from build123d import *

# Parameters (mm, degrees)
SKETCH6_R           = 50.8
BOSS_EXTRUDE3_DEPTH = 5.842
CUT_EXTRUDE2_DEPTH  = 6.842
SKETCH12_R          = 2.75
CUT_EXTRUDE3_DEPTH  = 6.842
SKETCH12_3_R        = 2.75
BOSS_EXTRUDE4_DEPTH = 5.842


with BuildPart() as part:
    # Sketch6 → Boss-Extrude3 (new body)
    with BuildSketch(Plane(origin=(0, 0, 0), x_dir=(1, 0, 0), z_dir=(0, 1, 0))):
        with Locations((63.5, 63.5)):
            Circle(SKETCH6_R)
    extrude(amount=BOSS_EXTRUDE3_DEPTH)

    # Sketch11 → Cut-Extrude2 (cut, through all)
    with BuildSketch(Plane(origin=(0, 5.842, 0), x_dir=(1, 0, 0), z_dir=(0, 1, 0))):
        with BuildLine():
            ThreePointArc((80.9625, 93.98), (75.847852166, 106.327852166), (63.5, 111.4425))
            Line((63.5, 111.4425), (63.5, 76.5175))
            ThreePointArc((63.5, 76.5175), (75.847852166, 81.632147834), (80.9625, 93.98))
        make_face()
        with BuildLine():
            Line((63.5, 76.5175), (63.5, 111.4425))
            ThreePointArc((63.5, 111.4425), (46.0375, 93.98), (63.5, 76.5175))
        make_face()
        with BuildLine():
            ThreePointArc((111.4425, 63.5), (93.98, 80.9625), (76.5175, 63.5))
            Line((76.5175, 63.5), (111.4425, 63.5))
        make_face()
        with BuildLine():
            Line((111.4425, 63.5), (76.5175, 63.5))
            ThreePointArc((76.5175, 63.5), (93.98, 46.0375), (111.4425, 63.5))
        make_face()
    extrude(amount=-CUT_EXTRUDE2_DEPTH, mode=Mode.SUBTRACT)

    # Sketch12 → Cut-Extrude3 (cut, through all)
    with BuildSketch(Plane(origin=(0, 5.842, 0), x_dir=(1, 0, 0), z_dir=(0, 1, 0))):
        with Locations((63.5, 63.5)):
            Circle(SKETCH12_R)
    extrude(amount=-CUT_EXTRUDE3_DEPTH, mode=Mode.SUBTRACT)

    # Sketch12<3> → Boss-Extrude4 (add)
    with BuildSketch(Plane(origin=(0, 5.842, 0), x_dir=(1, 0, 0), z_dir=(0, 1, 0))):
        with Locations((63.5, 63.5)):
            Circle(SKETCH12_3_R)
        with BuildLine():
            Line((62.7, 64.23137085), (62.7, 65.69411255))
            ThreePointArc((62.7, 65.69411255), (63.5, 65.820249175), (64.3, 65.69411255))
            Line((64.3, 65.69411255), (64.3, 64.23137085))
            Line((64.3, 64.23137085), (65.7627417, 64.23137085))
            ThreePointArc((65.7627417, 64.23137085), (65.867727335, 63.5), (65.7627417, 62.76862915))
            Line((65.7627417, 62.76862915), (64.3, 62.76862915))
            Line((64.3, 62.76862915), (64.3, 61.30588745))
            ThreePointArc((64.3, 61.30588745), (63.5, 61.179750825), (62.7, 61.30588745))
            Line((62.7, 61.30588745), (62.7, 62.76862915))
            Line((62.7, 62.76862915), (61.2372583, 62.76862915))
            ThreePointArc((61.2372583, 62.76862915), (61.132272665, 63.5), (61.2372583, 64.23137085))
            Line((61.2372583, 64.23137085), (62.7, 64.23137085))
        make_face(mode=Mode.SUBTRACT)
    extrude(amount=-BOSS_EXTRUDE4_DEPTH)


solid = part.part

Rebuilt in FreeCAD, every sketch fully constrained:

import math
import FreeCAD as App
import Part
import Sketcher

V = App.Vector
Q = App.Units.Quantity

doc = App.newDocument("Part")
body = doc.addObject("PartDesign::Body", "Body")

sketch1 = doc.addObject("Sketcher::SketchObject", "Sketch")
body.addObject(sketch1)
sketch1.AttachmentSupport = (doc.XZ_Plane, [""])
sketch1.MapMode = "FlatFace"
sketch1.addGeometry(Part.Circle(V(64, -64, 0), V(0, 0, 1), 51), False)
sketch1.addConstraint([
    Sketcher.Constraint("Diameter", 0, Q("4 in")),
    Sketcher.Constraint("DistanceX", -1, 1, 0, 3, Q("2.5 in")),
    Sketcher.Constraint("DistanceY", 0, 3, -1, 1, Q("2.5 in")),
])
pad1 = doc.addObject("PartDesign::Pad", "Pad")
body.addObject(pad1)
pad1.Profile = sketch1
pad1.Length = Q("0.23 in")
pad1.Reversed = True

sketch2 = doc.addObject("Sketcher::SketchObject", "Sketch001")
body.addObject(sketch2)
sketch2.AttachmentSupport = (doc.XZ_Plane, [""])
sketch2.MapMode = "FlatFace"
sketch2.AttachmentOffset = App.Placement(V(0, 0, -0.23 * 25.4), App.Rotation())
sketch2.addGeometry([
    Part.ArcOfCircle(Part.Circle(V(63, -94, 0), V(0, 0, 1), 17), math.radians(-90), math.radians(0)),
    Part.ArcOfCircle(Part.Circle(V(64, -94, 0), V(0, 0, 1), 17), math.radians(90), math.radians(270)),
    Part.ArcOfCircle(Part.Circle(V(63, -94, 0), V(0, 0, 1), 17), math.radians(0), math.radians(90)),
    Part.Circle(V(94, -64, 0), V(0, 0, 1), 17),
], False)
sketch2.addConstraint([
    Sketcher.Constraint("Tangent", 0, 1, 1, 2),
    Sketcher.Constraint("Tangent", 1, 1, 2, 2),
    Sketcher.Constraint("Tangent", 2, 1, 0, 2),
    Sketcher.Constraint("Equal", 2, 3),
    Sketcher.Constraint("Horizontal", 1, 3, 2, 1),
    Sketcher.Constraint("Vertical", 2, 3, 0, 1),
    Sketcher.Constraint("Vertical", 0, 1, 1, 1),
    Sketcher.Constraint("Diameter", 3, Q("1.375 in")),
    Sketcher.Constraint("DistanceX", -1, 1, 0, 3, Q("2.5 in")),
    Sketcher.Constraint("DistanceY", 0, 3, -1, 1, Q("3.7 in")),
    Sketcher.Constraint("DistanceX", -1, 1, 3, 3, Q("3.7 in")),
    Sketcher.Constraint("DistanceY", 3, 3, -1, 1, Q("2.5 in")),
])
pocket1 = doc.addObject("PartDesign::Pocket", "Pocket")
body.addObject(pocket1)
pocket1.Profile = sketch2
pocket1.Type = "ThroughAll"
pocket1.Reversed = True

sketch3 = doc.addObject("Sketcher::SketchObject", "Sketch002")
body.addObject(sketch3)
sketch3.AttachmentSupport = (doc.XZ_Plane, [""])
sketch3.MapMode = "FlatFace"
sketch3.AttachmentOffset = App.Placement(V(0, 0, -0.23 * 25.4), App.Rotation())
sketch3.addGeometry(Part.Circle(V(63.5, -63.5, 0), V(0, 0, 1), 2.8), False)
sketch3.addConstraint([
    Sketcher.Constraint("DistanceX", -1, 1, 0, 3, Q("2.5 in")),
    Sketcher.Constraint("DistanceY", 0, 3, -1, 1, Q("2.5 in")),
    Sketcher.Constraint("Diameter", 0, 5.5),
])
pocket2 = doc.addObject("PartDesign::Pocket", "Pocket001")
body.addObject(pocket2)
pocket2.Profile = sketch3
pocket2.Type = "ThroughAll"
pocket2.Reversed = True

sketch4 = doc.addObject("Sketcher::SketchObject", "Sketch003")
body.addObject(sketch4)
sketch4.AttachmentSupport = (doc.XZ_Plane, [""])
sketch4.MapMode = "FlatFace"
sketch4.AttachmentOffset = App.Placement(V(0, 0, -0.23 * 25.4), App.Rotation())
sketch4.addGeometry([
    Part.Circle(V(63.5, -63.5, 0), V(0, 0, 1), 2.8),
    Part.LineSegment(V(61.2, -64.2, 0), V(62.7, -64.2, 0)),
    Part.LineSegment(V(62.7, -64.2, 0), V(62.7, -65.7, 0)),
    Part.ArcOfCircle(Part.Circle(V(63.5, -63.2, 0), V(0, 0, 1), 2.6), math.radians(-108), math.radians(-72)),
    Part.LineSegment(V(64.3, -65.7, 0), V(64.3, -64.2, 0)),
    Part.LineSegment(V(64.3, -64.2, 0), V(65.8, -64.2, 0)),
    Part.ArcOfCircle(Part.Circle(V(63.3, -63.5, 0), V(0, 0, 1), 2.6), math.radians(-16), math.radians(16)),
    Part.LineSegment(V(65.8, -62.8, 0), V(64.3, -62.8, 0)),
    Part.LineSegment(V(64.3, -62.8, 0), V(64.3, -61.3, 0)),
    Part.ArcOfCircle(Part.Circle(V(63.5, -63.8, 0), V(0, 0, 1), 2.6), math.radians(72), math.radians(108)),
    Part.LineSegment(V(62.7, -61.3, 0), V(62.7, -62.8, 0)),
    Part.LineSegment(V(62.7, -62.8, 0), V(61.2, -62.8, 0)),
    Part.ArcOfCircle(Part.Circle(V(63.7, -63.5, 0), V(0, 0, 1), 2.6), math.radians(164), math.radians(196)),
], False)
sketch4.addConstraint([
    Sketcher.Constraint("Coincident", 1, 2, 2, 1),
    Sketcher.Constraint("Coincident", 2, 2, 3, 1),
    Sketcher.Constraint("Coincident", 3, 2, 4, 1),
    Sketcher.Constraint("Coincident", 4, 2, 5, 1),
    Sketcher.Constraint("Coincident", 5, 2, 6, 1),
    Sketcher.Constraint("Coincident", 6, 2, 7, 1),
    Sketcher.Constraint("Coincident", 7, 2, 8, 1),
    Sketcher.Constraint("Coincident", 8, 2, 9, 1),
    Sketcher.Constraint("Coincident", 9, 2, 10, 1),
    Sketcher.Constraint("Coincident", 10, 2, 11, 1),
    Sketcher.Constraint("Coincident", 11, 2, 12, 1),
    Sketcher.Constraint("Coincident", 12, 2, 1, 1),
    Sketcher.Constraint("Horizontal", 1),
    Sketcher.Constraint("Vertical", 2),
    Sketcher.Constraint("Vertical", 4),
    Sketcher.Constraint("Horizontal", 5),
    Sketcher.Constraint("Horizontal", 7),
    Sketcher.Constraint("Vertical", 8),
    Sketcher.Constraint("Vertical", 10),
    Sketcher.Constraint("Horizontal", 11),
    Sketcher.Constraint("Equal", 3, 6),
    Sketcher.Constraint("Equal", 6, 9),
    Sketcher.Constraint("Equal", 9, 12),
    Sketcher.Constraint("Horizontal", 0, 3, 6, 3),
    Sketcher.Constraint("Horizontal", 6, 3, 12, 3),
    Sketcher.Constraint("Horizontal", 2, 2, 3, 2),
    Sketcher.Constraint("Horizontal", 1, 2, 4, 2),
    Sketcher.Constraint("Horizontal", 8, 2, 9, 2),
    Sketcher.Constraint("Horizontal", 7, 2, 10, 2),
    Sketcher.Constraint("Vertical", 0, 3, 3, 3),
    Sketcher.Constraint("Vertical", 3, 3, 9, 3),
    Sketcher.Constraint("Vertical", 5, 2, 6, 2),
    Sketcher.Constraint("Vertical", 4, 2, 7, 2),
    Sketcher.Constraint("Equal", 1, 5),
    Sketcher.Constraint("Equal", 11, 2),
    Sketcher.Constraint("Equal", 4, 8),
    Sketcher.Constraint("DistanceX", -1, 1, 0, 3, Q("2.5 in")),
    Sketcher.Constraint("DistanceY", 0, 3, -1, 1, Q("2.5 in")),
    Sketcher.Constraint("Diameter", 0, 5.5),
    Sketcher.Constraint("Radius", 3, 2.6),
    Sketcher.Constraint("DistanceX", 1, 1, 1, 2, 1.462742),
    Sketcher.Constraint("DistanceX", -1, 1, 1, 2, 62.7),
    Sketcher.Constraint("DistanceY", 9, 3, 3, 3, 0.559502),
])
pad2 = doc.addObject("PartDesign::Pad", "Pad001")
body.addObject(pad2)
pad2.Profile = sketch4
pad2.Length = Q("0.23 in")

doc.recompute()
